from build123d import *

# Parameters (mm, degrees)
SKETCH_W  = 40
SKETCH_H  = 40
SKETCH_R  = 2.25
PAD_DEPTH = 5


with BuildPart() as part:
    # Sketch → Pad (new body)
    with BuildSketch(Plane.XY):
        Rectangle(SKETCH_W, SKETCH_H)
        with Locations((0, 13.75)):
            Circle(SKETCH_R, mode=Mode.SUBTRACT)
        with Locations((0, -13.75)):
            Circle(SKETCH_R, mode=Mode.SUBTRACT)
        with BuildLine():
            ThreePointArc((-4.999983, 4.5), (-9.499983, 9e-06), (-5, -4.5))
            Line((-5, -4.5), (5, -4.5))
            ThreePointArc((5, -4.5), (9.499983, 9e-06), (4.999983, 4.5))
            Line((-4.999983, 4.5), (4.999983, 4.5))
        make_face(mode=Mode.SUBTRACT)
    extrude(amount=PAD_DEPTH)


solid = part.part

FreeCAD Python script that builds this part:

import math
import FreeCAD as App
import Part
import Sketcher

V = App.Vector
Q = App.Units.Quantity

doc = App.newDocument("Part")
body = doc.addObject("PartDesign::Body", "Body")

# Sketch on XY plane
sketch1 = body.newObject("Sketcher::SketchObject", "Sketch")
sketch1.AttachmentSupport = (doc.getObject("XY_Plane"), [""])
sketch1.MapMode = "FlatFace"
sketch1.addGeometry([
    Part.LineSegment(V(-20, 20, 0), V(-20, -20, 0)),  # 0
    Part.LineSegment(V(-20, -20, 0), V(20, -20, 0)),  # 1
    Part.LineSegment(V(20, -20, 0), V(20, 20, 0)),  # 2
    Part.LineSegment(V(20, 20, 0), V(-20, 20, 0)),  # 3
    Part.Circle(V(0, -13.8, 0), V(0, 0, 1), 2.2),  # 4
    Part.ArcOfCircle(Part.Circle(V(-5, 0, 0), V(0, 0, 1), 4.5), math.radians(90), math.radians(270)),  # 5
    Part.LineSegment(V(-5, 4.5, 0), V(5, 4.5, 0)),  # 6
    Part.ArcOfCircle(Part.Circle(V(5, 0, 0), V(0, 0, 1), 4.5), math.radians(-90), math.radians(90)),  # 7
    Part.LineSegment(V(5, -4.5, 0), V(-5, -4.5, 0)),  # 8
    Part.Circle(V(0, 13.8, 0), V(0, 0, 1), 2.2),  # 9
], False)
sketch1.addConstraint([
    Sketcher.Constraint("Coincident", 0, 2, 1, 1),
    Sketcher.Constraint("Coincident", 1, 2, 2, 1),
    Sketcher.Constraint("Coincident", 2, 2, 3, 1),
    Sketcher.Constraint("Coincident", 3, 2, 0, 1),
    Sketcher.Constraint("Tangent", 5, 1, 6, 1),
    Sketcher.Constraint("Tangent", 6, 2, 7, 2),
    Sketcher.Constraint("Coincident", 7, 1, 8, 1),
    Sketcher.Constraint("Coincident", 8, 2, 5, 2),
    Sketcher.Constraint("Vertical", 0),
    Sketcher.Constraint("Horizontal", 1),
    Sketcher.Constraint("Vertical", 2),
    Sketcher.Constraint("Horizontal", 3),
    Sketcher.Constraint("Horizontal", 6),
    Sketcher.Constraint("Horizontal", 8),
    Sketcher.Constraint("Equal", 4, 9),
    Sketcher.Constraint("Symmetric", 5, 3, 7, 3, -1, 1),
    Sketcher.Constraint("Symmetric", 4, 3, 9, 3, -1, 1),
    Sketcher.Constraint("Symmetric", 0, 2, 2, 2, -1, 1),
    Sketcher.Constraint("PointOnObject", 4, 3, -2),
    Sketcher.Constraint("Equal", 3, 0),
    Sketcher.Constraint("Diameter", 4, Q("4.5 mm")),
    Sketcher.Constraint("Radius", 5, Q("4.5 mm")),
    Sketcher.Constraint("DistanceX", 1, 1, 1, 2, Q("40 mm")),
    Sketcher.Constraint("DistanceX", 8, 2, 8, 1, Q("10 mm")),
    Sketcher.Constraint("DistanceX", -1, 1, 7, 1, Q("5 mm")),
    Sketcher.Constraint("DistanceY", 4, 3, 9, 3, Q("27.5 mm")),
    Sketcher.Constraint("DistanceX", 6, 1, 6, 2, Q("9.999966 mm")),
])
pad1 = body.newObject("PartDesign::Pad", "Pad")
pad1.Profile = sketch1
pad1.Length = 5

doc.recompute()
